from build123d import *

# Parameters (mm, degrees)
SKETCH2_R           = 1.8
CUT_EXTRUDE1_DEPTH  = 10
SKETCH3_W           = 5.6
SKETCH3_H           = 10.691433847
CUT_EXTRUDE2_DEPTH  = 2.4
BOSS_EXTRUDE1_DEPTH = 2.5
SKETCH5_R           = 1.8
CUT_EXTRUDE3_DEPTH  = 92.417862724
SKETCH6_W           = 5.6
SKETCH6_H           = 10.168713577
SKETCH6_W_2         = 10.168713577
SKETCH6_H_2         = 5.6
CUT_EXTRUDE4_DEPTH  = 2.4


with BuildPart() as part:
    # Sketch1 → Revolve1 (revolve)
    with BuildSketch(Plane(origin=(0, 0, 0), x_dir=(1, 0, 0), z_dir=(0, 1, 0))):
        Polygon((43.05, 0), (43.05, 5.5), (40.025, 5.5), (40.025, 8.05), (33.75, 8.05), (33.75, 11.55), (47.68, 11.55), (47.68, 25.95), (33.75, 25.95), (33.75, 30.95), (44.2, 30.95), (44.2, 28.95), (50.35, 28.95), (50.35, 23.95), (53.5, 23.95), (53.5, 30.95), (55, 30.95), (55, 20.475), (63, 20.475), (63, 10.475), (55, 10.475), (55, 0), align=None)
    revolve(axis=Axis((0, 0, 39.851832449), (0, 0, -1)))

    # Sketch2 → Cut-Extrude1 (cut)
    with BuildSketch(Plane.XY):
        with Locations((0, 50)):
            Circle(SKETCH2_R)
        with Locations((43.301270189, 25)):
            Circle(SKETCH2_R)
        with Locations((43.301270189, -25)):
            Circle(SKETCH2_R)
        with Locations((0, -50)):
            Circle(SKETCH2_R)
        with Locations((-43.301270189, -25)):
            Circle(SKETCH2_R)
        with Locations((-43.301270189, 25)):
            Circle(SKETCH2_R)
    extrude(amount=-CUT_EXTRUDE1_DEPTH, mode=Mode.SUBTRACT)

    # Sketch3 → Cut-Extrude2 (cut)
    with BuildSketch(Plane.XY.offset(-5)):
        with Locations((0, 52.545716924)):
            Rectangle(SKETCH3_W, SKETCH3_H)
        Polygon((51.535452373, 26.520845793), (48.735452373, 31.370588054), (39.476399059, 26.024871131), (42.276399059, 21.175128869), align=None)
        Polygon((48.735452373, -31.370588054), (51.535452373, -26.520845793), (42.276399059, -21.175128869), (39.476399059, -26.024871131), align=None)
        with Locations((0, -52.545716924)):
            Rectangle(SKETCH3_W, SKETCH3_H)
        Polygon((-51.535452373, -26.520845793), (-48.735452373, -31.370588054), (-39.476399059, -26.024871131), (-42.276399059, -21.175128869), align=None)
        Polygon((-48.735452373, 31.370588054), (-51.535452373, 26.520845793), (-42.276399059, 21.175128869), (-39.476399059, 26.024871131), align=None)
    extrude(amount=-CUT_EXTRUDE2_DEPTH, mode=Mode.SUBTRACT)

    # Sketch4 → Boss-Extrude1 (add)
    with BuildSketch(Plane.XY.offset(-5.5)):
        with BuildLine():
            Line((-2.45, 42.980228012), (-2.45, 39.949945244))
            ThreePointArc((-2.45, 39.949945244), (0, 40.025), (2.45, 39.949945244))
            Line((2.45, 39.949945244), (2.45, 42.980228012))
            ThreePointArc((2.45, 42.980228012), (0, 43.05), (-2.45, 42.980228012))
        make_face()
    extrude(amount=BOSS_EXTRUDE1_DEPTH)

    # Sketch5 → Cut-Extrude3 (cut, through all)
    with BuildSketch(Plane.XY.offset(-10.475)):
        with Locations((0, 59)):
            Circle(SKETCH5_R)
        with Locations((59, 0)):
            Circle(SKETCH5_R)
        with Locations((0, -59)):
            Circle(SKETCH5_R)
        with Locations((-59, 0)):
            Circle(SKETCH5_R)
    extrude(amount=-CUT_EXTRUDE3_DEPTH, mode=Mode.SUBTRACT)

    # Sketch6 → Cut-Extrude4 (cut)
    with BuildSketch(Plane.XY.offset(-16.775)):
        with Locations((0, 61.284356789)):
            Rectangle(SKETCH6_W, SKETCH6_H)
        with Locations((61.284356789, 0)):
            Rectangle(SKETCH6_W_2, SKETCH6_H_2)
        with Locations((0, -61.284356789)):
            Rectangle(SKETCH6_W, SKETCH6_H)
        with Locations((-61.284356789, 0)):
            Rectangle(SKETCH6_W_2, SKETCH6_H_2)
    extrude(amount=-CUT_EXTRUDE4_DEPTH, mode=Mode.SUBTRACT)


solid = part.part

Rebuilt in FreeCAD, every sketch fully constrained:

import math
import FreeCAD as App
import Part
import Sketcher
from FreeCAD import Vector
Q = App.Units.Quantity


def add_polygon(sketch, points):
    """Adds a closed chain of lines whose ends are joined by coincident constraints."""
    first, n = sketch.GeometryCount, len(points)
    for a, b in zip(points, points[1:] + points[:1]):
        sketch.addGeometry(Part.LineSegment(App.Vector(*a, 0), App.Vector(*b, 0)), False)
    for i in range(n):
        sketch.addConstraint(Sketcher.Constraint("Coincident", first + i, 2, first + (i + 1) % n, 1))

doc = App.newDocument("Part")
body = doc.addObject("PartDesign::Body", "Body")

# Sketch on XZ plane
sketch1 = body.newObject("Sketcher::SketchObject", "Sketch")
sketch1.AttachmentSupport = (doc.getObject("XZ_Plane"), [""])
sketch1.MapMode = "FlatFace"
add_polygon(sketch1, [(43, -5.5), (43, 0), (55, 0), (55, -10.5), (63, -10.5), (63, -20.5), (55, -20.5), (55, -30.9), (53.5, -30.9), (53.5, -23.9), (50.4, -23.9), (50.4, -28.9), (44.2, -28.9), (44.2, -30.9), (33.8, -30.9), (33.8, -25.9), (47.7, -25.9), (47.7, -11.6), (33.8, -11.6), (33.8, -8.1), (40, -8.1), (40, -5.5)])  # lines 0-21
sketch1.addConstraint([
    Sketcher.Constraint("Vertical", 0),
    Sketcher.Constraint("Horizontal", 1),
    Sketcher.Constraint("Vertical", 2),
    Sketcher.Constraint("Horizontal", 3),
    Sketcher.Constraint("Vertical", 4),
    Sketcher.Constraint("Horizontal", 5),
    Sketcher.Constraint("Vertical", 6),
    Sketcher.Constraint("Horizontal", 7),
    Sketcher.Constraint("Vertical", 8),
    Sketcher.Constraint("Horizontal", 9),
    Sketcher.Constraint("Vertical", 10),
    Sketcher.Constraint("Horizontal", 11),
    Sketcher.Constraint("Vertical", 12),
    Sketcher.Constraint("Horizontal", 13),
    Sketcher.Constraint("Vertical", 14),
    Sketcher.Constraint("Horizontal", 15),
    Sketcher.Constraint("Vertical", 16),
    Sketcher.Constraint("Horizontal", 17),
    Sketcher.Constraint("Vertical", 18),
    Sketcher.Constraint("Horizontal", 19),
    Sketcher.Constraint("Vertical", 20),
    Sketcher.Constraint("Horizontal", 21),
    Sketcher.Constraint("PointOnObject", 0, 2, -1),
    Sketcher.Constraint("Horizontal", 7, 2, 12, 2),
    Sketcher.Constraint("Vertical", 2, 2, 5, 2),
    Sketcher.Constraint("Vertical", 14, 2, 17, 2),
    Sketcher.Constraint("Equal", 2, 6),
    Sketcher.Constraint("Equal", 10, 14),
    Sketcher.Constraint("DistanceX", 3, 1, 3, 2, 8.0),
    Sketcher.Constraint("DistanceY", 4, 2, 4, 1, 10.0),
    Sketcher.Constraint("DistanceY", 8, 1, 8, 2, 7.0),
    Sketcher.Constraint("DistanceY", 10, 2, 10, 1, 5.0),
    Sketcher.Constraint("DistanceX", 7, 2, 7, 1, 1.5),
    Sketcher.Constraint("DistanceY", 0, 1, 0, 2, 5.5),
    Sketcher.Constraint("DistanceY", 16, 1, 16, 2, 14.4),
    Sketcher.Constraint("DistanceY", 18, 1, 18, 2, 3.5),
    Sketcher.Constraint("DistanceX", -1, 1, 1, 2, 55.0),
    Sketcher.Constraint("DistanceX", 1, 1, 1, 2, 11.95),
    Sketcher.Constraint("DistanceX", 9, 2, 9, 1, 3.15),
    Sketcher.Constraint("DistanceX", 11, 2, 11, 1, 6.15),
    Sketcher.Constraint("DistanceX", 13, 2, 13, 1, 10.45),
    Sketcher.Constraint("DistanceX", 15, 1, 15, 2, 13.93),
    Sketcher.Constraint("DistanceY", 20, 1, 20, 2, 2.55),
    Sketcher.Constraint("DistanceX", 19, 1, 19, 2, 6.275),
])
revolution = body.newObject("PartDesign::Revolution", "Revolution")
revolution.Profile = sketch1
revolution.ReferenceAxis = (sketch1, ["V_Axis"])
revolution.Angle = 360

# Sketch on XY plane
sketch2 = body.newObject("Sketcher::SketchObject", "Sketch001")
sketch2.AttachmentSupport = (doc.getObject("XY_Plane"), [""])
sketch2.MapMode = "FlatFace"
sketch2.addGeometry([
    Part.Circle(Vector(0, 50, 0), Vector(0, 0, 1), 1.8),  # 0
    Part.Circle(Vector(43.3, 25, 0), Vector(0, 0, 1), 1.8),  # 1
    Part.Circle(Vector(43.3, -25, 0), Vector(0, 0, 1), 1.8),  # 2
    Part.Circle(Vector(0, -50, 0), Vector(0, 0, 1), 1.8),  # 3
    Part.Circle(Vector(-43.3, -25, 0), Vector(0, 0, 1), 1.8),  # 4
    Part.Circle(Vector(-43.3, 25, 0), Vector(0, 0, 1), 1.8),  # 5
], False)
sketch2.addConstraint([
    Sketcher.Constraint("Equal", 0, 1),
    Sketcher.Constraint("Equal", 1, 2),
    Sketcher.Constraint("Equal", 2, 3),
    Sketcher.Constraint("Equal", 3, 4),
    Sketcher.Constraint("Equal", 4, 5),
    Sketcher.Constraint("Symmetric", 0, 3, 3, 3, -1, 1),
    Sketcher.Constraint("Symmetric", 1, 3, 4, 3, -1, 1),
    Sketcher.Constraint("Symmetric", 2, 3, 5, 3, -1, 1),
    Sketcher.Constraint("Symmetric", 2, 3, 4, 3, -2),
    Sketcher.Constraint("PointOnObject", 0, 3, -2),
    Sketcher.Constraint("Diameter", 0, 3.6),
    Sketcher.Constraint("DistanceY", -1, 1, 0, 3, 50.0),
    Sketcher.Constraint("DistanceY", -1, 1, 1, 3, 25.0),
    Sketcher.Constraint("DistanceX", -1, 1, 1, 3, 43.30127),
])
pocket1 = body.newObject("PartDesign::Pocket", "Pocket")
pocket1.Profile = sketch2
pocket1.Length = 10

# Sketch on XY plane
sketch3 = body.newObject("Sketcher::SketchObject", "Sketch002")
sketch3.AttachmentSupport = (doc.getObject("XY_Plane"), [""])
sketch3.MapMode = "FlatFace"
sketch3.AttachmentOffset = App.Placement(Vector(0, 0, -5), App.Rotation())
add_polygon(sketch3, [(-3, 58), (-3, 47), (3, 47), (3, 58)])  # lines 0-3
add_polygon(sketch3, [(52, 27), (49, 31), (39, 26), (42, 21)])  # lines 4-7
add_polygon(sketch3, [(49, -31), (52, -27), (42, -21), (39, -26)])  # lines 8-11
add_polygon(sketch3, [(-3, -47), (-3, -58), (3, -58), (3, -47)])  # lines 12-15
add_polygon(sketch3, [(-52, -27), (-49, -31), (-39, -26), (-42, -21)])  # lines 16-19
add_polygon(sketch3, [(-49, 31), (-52, 27), (-42, 21), (-39, 26)])  # lines 20-23
sketch3.addConstraint([
    Sketcher.Constraint("Vertical", 0),
    Sketcher.Constraint("Horizontal", 1),
    Sketcher.Constraint("Vertical", 2),
    Sketcher.Constraint("Horizontal", 3),
    Sketcher.Constraint("Vertical", 12),
    Sketcher.Constraint("Horizontal", 13),
    Sketcher.Constraint("Vertical", 14),
    Sketcher.Constraint("Horizontal", 15),
    Sketcher.Constraint("Symmetric", 2, 2, 12, 2, -1, 1),
    Sketcher.Constraint("Symmetric", 0, 2, 14, 2, -1, 1),
    Sketcher.Constraint("Symmetric", 4, 2, 16, 2, -1, 1),
    Sketcher.Constraint("Symmetric", 5, 2, 17, 2, -1, 1),
    Sketcher.Constraint("Symmetric", 6, 2, 18, 2, -1, 1),
    Sketcher.Constraint("Symmetric", 7, 2, 19, 2, -1, 1),
    Sketcher.Constraint("Symmetric", 8, 2, 20, 2, -1, 1),
    Sketcher.Constraint("Symmetric", 9, 2, 21, 2, -1, 1),
    Sketcher.Constraint("Symmetric", 10, 2, 22, 2, -1, 1),
    Sketcher.Constraint("Symmetric", 11, 2, 23, 2, -1, 1),
    Sketcher.Constraint("Symmetric", 11, 2, 16, 2, -2),
    Sketcher.Constraint("Symmetric", 10, 2, 17, 2, -2),
    Sketcher.Constraint("Symmetric", 9, 2, 18, 2, -2),
    Sketcher.Constraint("Symmetric", 8, 2, 19, 2, -2),
    Sketcher.Constraint("Perpendicular", 4, 5),
    Sketcher.Constraint("Perpendicular", 5, 6),
    Sketcher.Constraint("Perpendicular", 6, 7),
    Sketcher.Constraint("Vertical", 3, 2, 12, 2),
    Sketcher.Constraint("Angle", 4, Q("120 deg")),
    Sketcher.Constraint("DistanceX", 1, 1, 1, 2, 5.6),
    Sketcher.Constraint("Distance", 4, 5.6),
    Sketcher.Constraint("DistanceY", -1, 1, 0, 2, 47.2),
    Sketcher.Constraint("DistanceY", 9, 2, 5, 2, 47.2),
    Sketcher.Constraint("DistanceX", -1, 1, 5, 2, 39.476399),
    Sketcher.Constraint("DistanceY", 0, 2, 0, 1, 10.691434),
    Sketcher.Constraint("DistanceY", -1, 1, 4, 2, 31.370588),
])
pocket2 = body.newObject("PartDesign::Pocket", "Pocket001")
pocket2.Profile = sketch3
pocket2.Length = 2.4

# Sketch on XY plane
sketch4 = body.newObject("Sketcher::SketchObject", "Sketch003")
sketch4.AttachmentSupport = (doc.getObject("XY_Plane"), [""])
sketch4.MapMode = "FlatFace"
sketch4.AttachmentOffset = App.Placement(Vector(0, 0, -5.5), App.Rotation())
sketch4.addGeometry([
    Part.LineSegment(Vector(-2.5, 43, 0), Vector(-2.5, 39.9, 0)),
    Part.ArcOfCircle(Part.Circle(Vector(0, 0, 0), Vector(0, 0, 1), 40), math.radians(86.49), math.radians(93.51)),
    Part.LineSegment(Vector(2.5, 39.9, 0), Vector(2.5, 43, 0)),
    Part.ArcOfCircle(Part.Circle(Vector(0, 0, 0), Vector(0, 0, 1), 43), math.radians(86.74), math.radians(93.26)),
], False)
sketch4.addConstraint([
    Sketcher.Constraint("Coincident", 0, 2, 1, 2),
    Sketcher.Constraint("Coincident", 1, 1, 2, 1),
    Sketcher.Constraint("Coincident", 2, 2, 3, 1),
    Sketcher.Constraint("Coincident", 3, 2, 0, 1),
    Sketcher.Constraint("Vertical", 0),
    Sketcher.Constraint("Vertical", 2),
    Sketcher.Constraint("Coincident", 1, 3, -1, 1),
    Sketcher.Constraint("Coincident", 3, 3, -1, 1),
    Sketcher.Constraint("Horizontal", 0, 2, 1, 1),
    Sketcher.Constraint("Radius", 3, 43.05),
    Sketcher.Constraint("Radius", 1, 40.025),
    Sketcher.Constraint("DistanceX", 0, 2, 1, 1, 4.9),
])
pad1 = body.newObject("PartDesign::Pad", "Pad")
pad1.Profile = sketch4
pad1.Length = 2.5

# Sketch on XY plane
sketch5 = body.newObject("Sketcher::SketchObject", "Sketch004")
sketch5.AttachmentSupport = (doc.getObject("XY_Plane"), [""])
sketch5.MapMode = "FlatFace"
sketch5.AttachmentOffset = App.Placement(Vector(0, 0, -10.475), App.Rotation())
sketch5.addGeometry([
    Part.Circle(Vector(0, 59, 0), Vector(0, 0, 1), 1.8),
    Part.Circle(Vector(59, 0, 0), Vector(0, 0, 1), 1.8),
    Part.Circle(Vector(0, -59, 0), Vector(0, 0, 1), 1.8),
    Part.Circle(Vector(-59, 0, 0), Vector(0, 0, 1), 1.8),
], False)
sketch5.addConstraint([
    Sketcher.Constraint("Equal", 0, 1),
    Sketcher.Constraint("Equal", 1, 2),
    Sketcher.Constraint("Equal", 2, 3),
    Sketcher.Constraint("Symmetric", 0, 3, 2, 3, -1, 1),
    Sketcher.Constraint("Symmetric", 1, 3, 3, 3, -1, 1),
    Sketcher.Constraint("PointOnObject", 0, 3, -2),
    Sketcher.Constraint("PointOnObject", 1, 3, -1),
    Sketcher.Constraint("Diameter", 0, 3.6),
    Sketcher.Constraint("DistanceY", -1, 1, 0, 3, 59.0),
    Sketcher.Constraint("DistanceX", -1, 1, 1, 3, 59.0),
])
pocket3 = body.newObject("PartDesign::Pocket", "Pocket002")
pocket3.Profile = sketch5
pocket3.Type = "ThroughAll"

# Sketch on XY plane
sketch6 = body.newObject("Sketcher::SketchObject", "Sketch005")
sketch6.AttachmentSupport = (doc.getObject("XY_Plane"), [""])
sketch6.MapMode = "FlatFace"
sketch6.AttachmentOffset = App.Placement(Vector(0, 0, -16.775), App.Rotation())
add_polygon(sketch6, [(-3, 66), (-3, 56), (3, 56), (3, 66)])  # lines 0-3
add_polygon(sketch6, [(56, 3), (56, -3), (66, -3), (66, 3)])  # lines 4-7
add_polygon(sketch6, [(-3, -56), (-3, -66), (3, -66), (3, -56)])  # lines 8-11
add_polygon(sketch6, [(-66, 3), (-66, -3), (-56, -3), (-56, 3)])  # lines 12-15
sketch6.addConstraint([
    Sketcher.Constraint("Vertical", 0),
    Sketcher.Constraint("Horizontal", 1),
    Sketcher.Constraint("Vertical", 2),
    Sketcher.Constraint("Horizontal", 3),
    Sketcher.Constraint("Vertical", 4),
    Sketcher.Constraint("Horizontal", 5),
    Sketcher.Constraint("Vertical", 6),
    Sketcher.Constraint("Horizontal", 7),
    Sketcher.Constraint("Vertical", 8),
    Sketcher.Constraint("Horizontal", 9),
    Sketcher.Constraint("Vertical", 10),
    Sketcher.Constraint("Horizontal", 11),
    Sketcher.Constraint("Vertical", 12),
    Sketcher.Constraint("Horizontal", 13),
    Sketcher.Constraint("Vertical", 14),
    Sketcher.Constraint("Horizontal", 15),
    Sketcher.Constraint("Symmetric", 2, 2, 8, 2, -1, 1),
    Sketcher.Constraint("Symmetric", 0, 2, 10, 2, -1, 1),
    Sketcher.Constraint("Symmetric", 6, 2, 12, 2, -1, 1),
    Sketcher.Constraint("Symmetric", 4, 2, 14, 2, -1, 1),
    Sketcher.Constraint("Horizontal", 5, 2, 12, 2),
    Sketcher.Constraint("Vertical", 3, 2, 8, 2),
    Sketcher.Constraint("Equal", 15, 0),
    Sketcher.Constraint("Equal", 11, 4),
    Sketcher.Constraint("DistanceX", 1, 1, 1, 2, 5.6),
    Sketcher.Constraint("DistanceY", 4, 2, 1, 2, 59.0),
    Sketcher.Constraint("DistanceX", 0, 2, 4, 2, 59.0),
    Sketcher.Constraint("DistanceX", 5, 1, 5, 2, 10.168714),
])
pocket4 = body.newObject("PartDesign::Pocket", "Pocket003")
pocket4.Profile = sketch6
pocket4.Length = 2.4

doc.recompute()
